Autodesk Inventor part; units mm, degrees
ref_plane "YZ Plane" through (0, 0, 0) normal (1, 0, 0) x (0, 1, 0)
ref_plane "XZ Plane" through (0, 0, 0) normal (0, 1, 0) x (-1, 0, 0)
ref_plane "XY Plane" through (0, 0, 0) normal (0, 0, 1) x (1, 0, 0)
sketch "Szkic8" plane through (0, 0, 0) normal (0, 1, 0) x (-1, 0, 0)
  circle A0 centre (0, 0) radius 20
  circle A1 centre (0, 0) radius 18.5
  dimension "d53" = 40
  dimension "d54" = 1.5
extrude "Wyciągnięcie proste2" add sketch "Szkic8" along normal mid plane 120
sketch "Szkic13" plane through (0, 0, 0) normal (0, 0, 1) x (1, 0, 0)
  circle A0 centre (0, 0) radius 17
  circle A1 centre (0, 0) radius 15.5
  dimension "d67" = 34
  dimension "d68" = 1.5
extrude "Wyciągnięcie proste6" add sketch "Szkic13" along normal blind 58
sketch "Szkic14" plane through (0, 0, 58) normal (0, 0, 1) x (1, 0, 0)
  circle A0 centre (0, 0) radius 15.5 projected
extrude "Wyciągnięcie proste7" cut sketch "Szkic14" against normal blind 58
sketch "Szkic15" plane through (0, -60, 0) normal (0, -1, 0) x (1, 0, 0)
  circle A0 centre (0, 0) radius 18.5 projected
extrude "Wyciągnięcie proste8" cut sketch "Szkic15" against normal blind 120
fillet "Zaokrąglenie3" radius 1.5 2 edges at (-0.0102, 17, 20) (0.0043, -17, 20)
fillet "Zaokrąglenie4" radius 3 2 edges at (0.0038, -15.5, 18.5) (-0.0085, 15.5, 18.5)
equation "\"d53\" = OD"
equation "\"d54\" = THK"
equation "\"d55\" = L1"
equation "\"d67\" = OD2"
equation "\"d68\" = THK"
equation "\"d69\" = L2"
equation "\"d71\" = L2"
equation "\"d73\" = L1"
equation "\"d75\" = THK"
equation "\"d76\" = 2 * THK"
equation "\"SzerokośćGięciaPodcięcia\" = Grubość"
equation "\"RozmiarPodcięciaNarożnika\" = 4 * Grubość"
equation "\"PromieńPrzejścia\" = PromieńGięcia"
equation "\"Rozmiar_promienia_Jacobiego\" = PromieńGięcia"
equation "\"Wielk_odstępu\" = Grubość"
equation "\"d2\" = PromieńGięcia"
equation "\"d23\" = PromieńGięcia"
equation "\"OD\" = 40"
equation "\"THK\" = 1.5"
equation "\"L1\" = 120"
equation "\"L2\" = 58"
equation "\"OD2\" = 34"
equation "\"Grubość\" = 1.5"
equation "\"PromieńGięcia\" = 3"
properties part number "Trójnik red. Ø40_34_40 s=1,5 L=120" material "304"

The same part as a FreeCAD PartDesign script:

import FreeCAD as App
import Part
import Sketcher
Q = App.Units.Quantity


def edges_at(feature, points):
    """Names of the edges that pass closest to the given points."""
    edges = feature.Shape.Edges
    near = lambda p: min(range(len(edges)), key=lambda i: edges[i].distToShape(Part.Vertex(*p))[0])
    return sorted({f"Edge{near(p) + 1}" for p in points})

doc = App.newDocument("Part")
body = doc.addObject("PartDesign::Body", "Body")

sketch1 = body.newObject("Sketcher::SketchObject", "Sketch")
sketch1.AttachmentSupport = (doc.getObject("XZ_Plane"), [""])
sketch1.MapMode = "FlatFace"
sketch1.addGeometry(Part.Circle(App.Vector(0, 0, 0), App.Vector(0, 0, 1), 20), False)
sketch1.addGeometry(Part.Circle(App.Vector(0, 0, 0), App.Vector(0, 0, 1), 18.5), False)
sketch1.addConstraint(Sketcher.Constraint("Coincident", 0, 3, -1, 1))
sketch1.addConstraint(Sketcher.Constraint("Coincident", 1, 3, -1, 1))
sketch1.addConstraint(Sketcher.Constraint("Diameter", 0, Q("40 mm")))
sketch1.addConstraint(Sketcher.Constraint("Diameter", 1, Q("37 mm")))
pad1 = body.newObject("PartDesign::Pad", "Pad")
pad1.Profile = sketch1
pad1.Length = 120
pad1.Midplane = True

sketch2 = body.newObject("Sketcher::SketchObject", "Sketch001")
sketch2.AttachmentSupport = (doc.getObject("XY_Plane"), [""])
sketch2.MapMode = "FlatFace"
sketch2.addGeometry(Part.Circle(App.Vector(0, 0, 0), App.Vector(0, 0, 1), 17), False)
sketch2.addGeometry(Part.Circle(App.Vector(0, 0, 0), App.Vector(0, 0, 1), 15.5), False)
sketch2.addConstraint(Sketcher.Constraint("Coincident", 0, 3, -1, 1))
sketch2.addConstraint(Sketcher.Constraint("Coincident", 1, 3, -1, 1))
sketch2.addConstraint(Sketcher.Constraint("Diameter", 0, Q("34 mm")))
sketch2.addConstraint(Sketcher.Constraint("Diameter", 1, Q("31 mm")))
pad2 = body.newObject("PartDesign::Pad", "Pad001")
pad2.Profile = sketch2
pad2.Length = 58

sketch3 = body.newObject("Sketcher::SketchObject", "Sketch002")
sketch3.AttachmentSupport = (doc.getObject("XY_Plane"), [""])
sketch3.MapMode = "FlatFace"
sketch3.AttachmentOffset = App.Placement(App.Vector(0, 0, 58), App.Rotation())
sketch3.addGeometry(Part.Circle(App.Vector(0, 0, 0), App.Vector(0, 0, 1), 15.5), False)
sketch3.addConstraint(Sketcher.Constraint("Coincident", 0, 3, -1, 1))
sketch3.addConstraint(Sketcher.Constraint("Diameter", 0, Q("31 mm")))
pocket1 = body.newObject("PartDesign::Pocket", "Pocket")
pocket1.Profile = sketch3
pocket1.Length = 58

sketch4 = body.newObject("Sketcher::SketchObject", "Sketch003")
sketch4.AttachmentSupport = (doc.getObject("XZ_Plane"), [""])
sketch4.MapMode = "FlatFace"
sketch4.AttachmentOffset = App.Placement(App.Vector(0, 0, 60), App.Rotation())
sketch4.addGeometry(Part.Circle(App.Vector(0, 0, 0), App.Vector(0, 0, 1), 18.5), False)
sketch4.addConstraint(Sketcher.Constraint("Coincident", 0, 3, -1, 1))
sketch4.addConstraint(Sketcher.Constraint("Diameter", 0, Q("37 mm")))
pocket2 = body.newObject("PartDesign::Pocket", "Pocket001")
pocket2.Profile = sketch4
pocket2.Length = 120
doc.recompute()

fillet = body.newObject("PartDesign::Fillet", "Fillet")
fillet.Base = (pocket2, edges_at(pocket2, [(-0.01, 17, 20), (0.004, -17, 20)]))
fillet.Radius = 1.5
doc.recompute()

fillet2 = body.newObject("PartDesign::Fillet", "Fillet001")
fillet2.Base = (fillet, edges_at(fillet, [(0.004, -15.5, 18.5), (-0.009, 15.5, 18.5)]))
fillet2.Radius = 3

doc.recompute()
